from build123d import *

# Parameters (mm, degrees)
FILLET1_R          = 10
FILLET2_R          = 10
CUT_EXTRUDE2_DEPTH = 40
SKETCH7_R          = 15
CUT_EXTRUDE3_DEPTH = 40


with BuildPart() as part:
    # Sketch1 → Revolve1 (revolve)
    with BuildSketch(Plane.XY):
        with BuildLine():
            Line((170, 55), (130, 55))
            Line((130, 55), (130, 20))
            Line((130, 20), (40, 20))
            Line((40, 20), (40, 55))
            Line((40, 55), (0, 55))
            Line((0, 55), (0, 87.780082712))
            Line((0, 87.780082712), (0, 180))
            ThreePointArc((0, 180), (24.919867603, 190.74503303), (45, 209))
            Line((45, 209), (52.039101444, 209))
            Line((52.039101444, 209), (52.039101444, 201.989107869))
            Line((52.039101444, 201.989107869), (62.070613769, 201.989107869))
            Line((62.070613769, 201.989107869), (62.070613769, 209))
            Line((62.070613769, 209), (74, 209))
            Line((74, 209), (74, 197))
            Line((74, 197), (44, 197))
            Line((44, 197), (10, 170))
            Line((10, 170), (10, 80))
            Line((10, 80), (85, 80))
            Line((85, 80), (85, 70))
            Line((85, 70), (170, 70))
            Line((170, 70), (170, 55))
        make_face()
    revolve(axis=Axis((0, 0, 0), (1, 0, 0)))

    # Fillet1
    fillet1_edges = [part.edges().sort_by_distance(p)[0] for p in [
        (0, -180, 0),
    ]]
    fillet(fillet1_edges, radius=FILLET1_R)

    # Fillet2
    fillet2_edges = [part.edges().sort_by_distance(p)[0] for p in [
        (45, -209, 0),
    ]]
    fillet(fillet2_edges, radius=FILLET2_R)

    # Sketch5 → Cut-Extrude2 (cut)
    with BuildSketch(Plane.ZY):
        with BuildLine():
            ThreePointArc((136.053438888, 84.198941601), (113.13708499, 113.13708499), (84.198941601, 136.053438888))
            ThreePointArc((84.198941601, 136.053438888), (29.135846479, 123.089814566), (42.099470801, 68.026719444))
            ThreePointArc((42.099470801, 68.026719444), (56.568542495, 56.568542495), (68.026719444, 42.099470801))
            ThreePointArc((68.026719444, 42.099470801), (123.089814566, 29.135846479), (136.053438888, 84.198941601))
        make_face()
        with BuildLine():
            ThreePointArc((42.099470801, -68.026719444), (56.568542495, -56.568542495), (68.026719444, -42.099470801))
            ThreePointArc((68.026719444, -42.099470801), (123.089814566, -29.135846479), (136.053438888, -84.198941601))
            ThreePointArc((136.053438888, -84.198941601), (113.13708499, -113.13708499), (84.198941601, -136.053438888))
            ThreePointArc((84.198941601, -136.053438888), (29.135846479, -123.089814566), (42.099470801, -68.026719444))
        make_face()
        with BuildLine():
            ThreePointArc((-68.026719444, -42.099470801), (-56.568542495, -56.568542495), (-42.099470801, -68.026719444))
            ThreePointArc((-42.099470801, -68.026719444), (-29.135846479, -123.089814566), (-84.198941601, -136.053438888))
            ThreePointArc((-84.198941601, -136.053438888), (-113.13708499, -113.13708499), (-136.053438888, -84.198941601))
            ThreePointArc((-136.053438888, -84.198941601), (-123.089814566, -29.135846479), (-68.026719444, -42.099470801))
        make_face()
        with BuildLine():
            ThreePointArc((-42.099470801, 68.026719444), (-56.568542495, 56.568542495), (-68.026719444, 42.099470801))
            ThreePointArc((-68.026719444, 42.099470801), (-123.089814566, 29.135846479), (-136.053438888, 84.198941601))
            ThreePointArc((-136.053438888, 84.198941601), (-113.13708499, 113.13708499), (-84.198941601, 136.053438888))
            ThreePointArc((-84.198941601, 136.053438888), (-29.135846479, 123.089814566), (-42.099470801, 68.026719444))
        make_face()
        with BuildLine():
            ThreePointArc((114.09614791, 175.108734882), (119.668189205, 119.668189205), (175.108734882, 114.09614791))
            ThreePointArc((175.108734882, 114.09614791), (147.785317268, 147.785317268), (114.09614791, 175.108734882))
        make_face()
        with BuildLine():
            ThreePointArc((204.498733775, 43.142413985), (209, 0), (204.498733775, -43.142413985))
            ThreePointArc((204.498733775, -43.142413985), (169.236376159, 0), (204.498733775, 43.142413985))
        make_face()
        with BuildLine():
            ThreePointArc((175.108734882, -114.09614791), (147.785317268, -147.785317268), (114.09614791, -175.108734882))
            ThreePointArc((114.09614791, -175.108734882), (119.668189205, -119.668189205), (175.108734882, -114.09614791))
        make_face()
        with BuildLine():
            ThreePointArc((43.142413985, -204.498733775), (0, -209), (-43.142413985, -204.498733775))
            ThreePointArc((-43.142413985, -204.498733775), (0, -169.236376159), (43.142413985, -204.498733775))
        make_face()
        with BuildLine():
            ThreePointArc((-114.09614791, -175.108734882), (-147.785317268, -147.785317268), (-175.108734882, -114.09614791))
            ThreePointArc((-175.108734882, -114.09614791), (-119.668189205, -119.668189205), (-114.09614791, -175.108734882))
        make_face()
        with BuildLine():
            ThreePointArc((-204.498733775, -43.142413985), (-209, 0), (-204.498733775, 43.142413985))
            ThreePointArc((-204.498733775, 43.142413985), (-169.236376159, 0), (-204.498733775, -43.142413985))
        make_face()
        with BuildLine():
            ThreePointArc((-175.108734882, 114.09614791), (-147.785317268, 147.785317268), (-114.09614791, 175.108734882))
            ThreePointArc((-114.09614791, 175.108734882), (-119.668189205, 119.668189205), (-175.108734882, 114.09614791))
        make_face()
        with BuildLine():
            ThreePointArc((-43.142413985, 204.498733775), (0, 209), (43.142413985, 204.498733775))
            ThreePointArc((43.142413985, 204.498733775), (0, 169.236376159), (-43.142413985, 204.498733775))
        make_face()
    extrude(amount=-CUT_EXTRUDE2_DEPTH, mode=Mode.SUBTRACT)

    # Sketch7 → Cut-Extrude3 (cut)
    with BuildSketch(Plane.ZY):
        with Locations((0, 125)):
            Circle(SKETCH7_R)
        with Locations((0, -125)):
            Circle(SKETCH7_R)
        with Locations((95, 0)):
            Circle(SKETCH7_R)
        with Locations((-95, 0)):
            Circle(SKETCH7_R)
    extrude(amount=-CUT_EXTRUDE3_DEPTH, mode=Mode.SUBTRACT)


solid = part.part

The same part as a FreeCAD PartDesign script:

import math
import FreeCAD as App
import Part
import Sketcher
from FreeCAD import Vector


def edges_at(feature, points):
    """Names of the edges that pass closest to the given points."""
    edges = feature.Shape.Edges
    near = lambda p: min(range(len(edges)), key=lambda i: edges[i].distToShape(Part.Vertex(*p))[0])
    return sorted({f"Edge{near(p) + 1}" for p in points})

doc = App.newDocument("Part")
body = doc.addObject("PartDesign::Body", "Body")

# Sketch on XY plane
sketch1 = body.newObject("Sketcher::SketchObject", "Sketch")
sketch1.AttachmentSupport = (doc.getObject("XY_Plane"), [""])
sketch1.MapMode = "FlatFace"
sketch1.addGeometry(Part.LineSegment(Vector(130, 55, 0), Vector(170, 55, 0)), False)
sketch1.addGeometry(Part.LineSegment(Vector(170, 55, 0), Vector(170, 70, 0)), False)
sketch1.addGeometry(Part.LineSegment(Vector(170, 70, 0), Vector(85, 70, 0)), False)
sketch1.addGeometry(Part.LineSegment(Vector(85, 70, 0), Vector(85, 80, 0)), False)
sketch1.addGeometry(Part.LineSegment(Vector(85, 80, 0), Vector(10, 80, 0)), False)
sketch1.addGeometry(Part.LineSegment(Vector(10, 80, 0), Vector(10, 170, 0)), False)
sketch1.addGeometry(Part.LineSegment(Vector(10, 170, 0), Vector(44, 197, 0)), False)
sketch1.addGeometry(Part.LineSegment(Vector(44, 197, 0), Vector(74, 197, 0)), False)
sketch1.addGeometry(Part.LineSegment(Vector(74, 197, 0), Vector(74, 209, 0)), False)
sketch1.addGeometry(Part.LineSegment(Vector(74, 209, 0), Vector(62.070614, 209, 0)), False)
sketch1.addGeometry(Part.LineSegment(Vector(62.070614, 209, 0), Vector(62.070614, 201.989108, 0)), False)
sketch1.addGeometry(Part.LineSegment(Vector(62.070614, 201.989108, 0), Vector(52.039101, 201.989108, 0)), False)
sketch1.addGeometry(Part.LineSegment(Vector(52.039101, 201.989108, 0), Vector(52.039101, 209, 0)), False)
sketch1.addGeometry(Part.LineSegment(Vector(52.039101, 209, 0), Vector(45, 209, 0)), False)
sketch1.addGeometry(Part.ArcOfCircle(Part.Circle(Vector(-19.732526, 260.033229, 0), Vector(0, 0, 1), 82.429912), math.radians(-76.149725), math.radians(-38.251212)), False)
sketch1.addGeometry(Part.LineSegment(Vector(0, 180, 0), Vector(0, 55, 0)), False)
sketch1.addGeometry(Part.LineSegment(Vector(0, 55, 0), Vector(40, 55, 0)), False)
sketch1.addGeometry(Part.LineSegment(Vector(40, 55, 0), Vector(40, 20, 0)), False)
sketch1.addGeometry(Part.LineSegment(Vector(40, 20, 0), Vector(130, 20, 0)), False)
sketch1.addGeometry(Part.LineSegment(Vector(130, 20, 0), Vector(130, 55, 0)), False)
sketch1.addConstraint(Sketcher.Constraint("Coincident", 0, 2, 1, 1))
sketch1.addConstraint(Sketcher.Constraint("Coincident", 1, 2, 2, 1))
sketch1.addConstraint(Sketcher.Constraint("Coincident", 2, 2, 3, 1))
sketch1.addConstraint(Sketcher.Constraint("Coincident", 3, 2, 4, 1))
sketch1.addConstraint(Sketcher.Constraint("Coincident", 4, 2, 5, 1))
sketch1.addConstraint(Sketcher.Constraint("Coincident", 5, 2, 6, 1))
sketch1.addConstraint(Sketcher.Constraint("Coincident", 6, 2, 7, 1))
sketch1.addConstraint(Sketcher.Constraint("Coincident", 7, 2, 8, 1))
sketch1.addConstraint(Sketcher.Constraint("Coincident", 8, 2, 9, 1))
sketch1.addConstraint(Sketcher.Constraint("Coincident", 9, 2, 10, 1))
sketch1.addConstraint(Sketcher.Constraint("Coincident", 10, 2, 11, 1))
sketch1.addConstraint(Sketcher.Constraint("Coincident", 11, 2, 12, 1))
sketch1.addConstraint(Sketcher.Constraint("Coincident", 12, 2, 13, 1))
sketch1.addConstraint(Sketcher.Constraint("Coincident", 13, 2, 14, 2))
sketch1.addConstraint(Sketcher.Constraint("Coincident", 14, 1, 15, 1))
sketch1.addConstraint(Sketcher.Constraint("Coincident", 15, 2, 16, 1))
sketch1.addConstraint(Sketcher.Constraint("Coincident", 16, 2, 17, 1))
sketch1.addConstraint(Sketcher.Constraint("Coincident", 17, 2, 18, 1))
sketch1.addConstraint(Sketcher.Constraint("Coincident", 18, 2, 19, 1))
sketch1.addConstraint(Sketcher.Constraint("Coincident", 19, 2, 0, 1))
sketch1.addConstraint(Sketcher.Constraint("Horizontal", 0))
sketch1.addConstraint(Sketcher.Constraint("Vertical", 1))
sketch1.addConstraint(Sketcher.Constraint("Horizontal", 2))
sketch1.addConstraint(Sketcher.Constraint("Vertical", 3))
sketch1.addConstraint(Sketcher.Constraint("Horizontal", 4))
sketch1.addConstraint(Sketcher.Constraint("Vertical", 5))
sketch1.addConstraint(Sketcher.Constraint("Horizontal", 7))
sketch1.addConstraint(Sketcher.Constraint("Vertical", 8))
sketch1.addConstraint(Sketcher.Constraint("Horizontal", 9))
sketch1.addConstraint(Sketcher.Constraint("Vertical", 10))
sketch1.addConstraint(Sketcher.Constraint("Horizontal", 11))
sketch1.addConstraint(Sketcher.Constraint("Vertical", 12))
sketch1.addConstraint(Sketcher.Constraint("Horizontal", 13))
sketch1.addConstraint(Sketcher.Constraint("Vertical", 15))
sketch1.addConstraint(Sketcher.Constraint("Horizontal", 16))
sketch1.addConstraint(Sketcher.Constraint("Vertical", 17))
sketch1.addConstraint(Sketcher.Constraint("Horizontal", 18))
sketch1.addConstraint(Sketcher.Constraint("Vertical", 19))
sketch1.addConstraint(Sketcher.Constraint("PointOnObject", 14, 1, -2))
sketch1.addConstraint(Sketcher.Constraint("Horizontal", 9, 2, 12, 2))
sketch1.addConstraint(Sketcher.Constraint("Horizontal", 0, 2, 15, 2))
sketch1.addConstraint(Sketcher.Constraint("Equal", 0, 16))
sketch1.addConstraint(Sketcher.Constraint("Equal", 18, 5))
sketch1.addConstraint(Sketcher.Constraint("DistanceX", 0, 1, 0, 2, 40.0))
sketch1.addConstraint(Sketcher.Constraint("DistanceX", 2, 2, 2, 1, 85.0))
sketch1.addConstraint(Sketcher.Constraint("DistanceX", 4, 2, 4, 1, 75.0))
sketch1.addConstraint(Sketcher.Constraint("DistanceX", 7, 1, 7, 2, 30.0))
sketch1.addConstraint(Sketcher.Constraint("DistanceX", 18, 1, 18, 2, 90.0))
sketch1.addConstraint(Sketcher.Constraint("DistanceY", 1, 1, 1, 2, 15.0))
sketch1.addConstraint(Sketcher.Constraint("DistanceY", 3, 1, 3, 2, 10.0))
sketch1.addConstraint(Sketcher.Constraint("DistanceY", 8, 1, 8, 2, 12.0))
sketch1.addConstraint(Sketcher.Constraint("DistanceY", 15, 2, 15, 1, 125.0))
sketch1.addConstraint(Sketcher.Constraint("DistanceY", 17, 2, 17, 1, 35.0))
sketch1.addConstraint(Sketcher.Constraint("DistanceY", -1, 1, 0, 2, 55.0))
sketch1.addConstraint(Sketcher.Constraint("DistanceX", -1, 1, 6, 2, 44.0))
sketch1.addConstraint(Sketcher.Constraint("DistanceY", -1, 1, 6, 2, 197.0))
sketch1.addConstraint(Sketcher.Constraint("DistanceX", -1, 1, 13, 2, 45.0))
sketch1.addConstraint(Sketcher.Constraint("Radius", 14, 82.429912))
sketch1.addConstraint(Sketcher.Constraint("DistanceX", 13, 2, 13, 1, 7.039101))
sketch1.addConstraint(Sketcher.Constraint("DistanceX", 9, 2, 9, 1, 11.929386))
sketch1.addConstraint(Sketcher.Constraint("DistanceY", 10, 2, 10, 1, 7.010892))
revolution = body.newObject("PartDesign::Revolution", "Revolution")
revolution.Profile = sketch1
revolution.ReferenceAxis = (sketch1, ["H_Axis"])
revolution.Angle = 360
doc.recompute()

fillet = body.newObject("PartDesign::Fillet", "Fillet")
fillet.Base = (revolution, edges_at(revolution, [(0, -180, 0)]))
fillet.Radius = 10
doc.recompute()

fillet2 = body.newObject("PartDesign::Fillet", "Fillet001")
fillet2.Base = (fillet, edges_at(fillet, [(45, -209, 0)]))
fillet2.Radius = 10

# Sketch on YZ plane
sketch2 = body.newObject("Sketcher::SketchObject", "Sketch001")
sketch2.AttachmentSupport = (doc.getObject("YZ_Plane"), [""])
sketch2.MapMode = "FlatFace"
sketch2.addGeometry(Part.ArcOfCircle(Part.Circle(Vector(0, 0, 0), Vector(0, 0, 1), 160), math.radians(31.751985), math.radians(58.248015)), False)
sketch2.addGeometry(Part.ArcOfCircle(Part.Circle(Vector(102.040079, 63.149206, 0), Vector(0, 0, 1), 40), math.radians(-148.248015), math.radians(31.751985)), False)
sketch2.addGeometry(Part.ArcOfCircle(Part.Circle(Vector(0, 0, 0), Vector(0, 0, 1), 80), math.radians(31.751985), math.radians(58.248015)), False)
sketch2.addGeometry(Part.ArcOfCircle(Part.Circle(Vector(63.149206, 102.040079, 0), Vector(0, 0, 1), 40), math.radians(58.248015), math.radians(238.248015)), False)
sketch2.addGeometry(Part.ArcOfCircle(Part.Circle(Vector(0, 0, 0), Vector(0, 0, 1), 80), math.radians(121.751985), math.radians(148.248015)), False)
sketch2.addGeometry(Part.ArcOfCircle(Part.Circle(Vector(-102.040079, 63.149206, 0), Vector(0, 0, 1), 40), math.radians(148.248015), math.radians(328.248015)), False)
sketch2.addGeometry(Part.ArcOfCircle(Part.Circle(Vector(0, 0, 0), Vector(0, 0, 1), 160), math.radians(121.751985), math.radians(148.248015)), False)
sketch2.addGeometry(Part.ArcOfCircle(Part.Circle(Vector(-63.149206, 102.040079, 0), Vector(0, 0, 1), 40), math.radians(-58.248015), math.radians(121.751985)), False)
sketch2.addGeometry(Part.ArcOfCircle(Part.Circle(Vector(0, 0, 0), Vector(0, 0, 1), 80), math.radians(-148.248015), math.radians(-121.751985)), False)
sketch2.addGeometry(Part.ArcOfCircle(Part.Circle(Vector(-63.149206, -102.040079, 0), Vector(0, 0, 1), 40), math.radians(-121.751985), math.radians(58.248015)), False)
sketch2.addGeometry(Part.ArcOfCircle(Part.Circle(Vector(0, 0, 0), Vector(0, 0, 1), 160), math.radians(-148.248015), math.radians(-121.751985)), False)
sketch2.addGeometry(Part.ArcOfCircle(Part.Circle(Vector(-102.040079, -63.149206, 0), Vector(0, 0, 1), 40), math.radians(31.751985), math.radians(211.751985)), False)
sketch2.addGeometry(Part.ArcOfCircle(Part.Circle(Vector(0, 0, 0), Vector(0, 0, 1), 80), math.radians(-58.248015), math.radians(-31.751985)), False)
sketch2.addGeometry(Part.ArcOfCircle(Part.Circle(Vector(102.040079, -63.149206, 0), Vector(0, 0, 1), 40), math.radians(-31.751985), math.radians(148.248015)), False)
sketch2.addGeometry(Part.ArcOfCircle(Part.Circle(Vector(0, 0, 0), Vector(0, 0, 1), 160), math.radians(-58.248015), math.radians(-31.751985)), False)
sketch2.addGeometry(Part.ArcOfCircle(Part.Circle(Vector(63.149206, -102.040079, 0), Vector(0, 0, 1), 40), math.radians(121.751985), math.radians(301.751985)), False)
sketch2.addGeometry(Part.ArcOfCircle(Part.Circle(Vector(150.797073, 150.797073, 0), Vector(0, 0, 1), 44.02289), math.radians(146.478457), math.radians(303.521543)), False)
sketch2.addGeometry(Part.ArcOfCircle(Part.Circle(Vector(0, 0, 0), Vector(0, 0, 1), 209), math.radians(33.087185), math.radians(56.912815)), False)
sketch2.addGeometry(Part.ArcOfCircle(Part.Circle(Vector(0, 0, 0), Vector(0, 0, 1), 209), math.radians(78.087185), math.radians(101.912815)), False)
sketch2.addGeometry(Part.ArcOfCircle(Part.Circle(Vector(0, 213.259266, 0), Vector(0, 0, 1), 44.02289), math.radians(-168.521543), math.radians(-11.478457)), False)
sketch2.addGeometry(Part.ArcOfCircle(Part.Circle(Vector(0, 0, 0), Vector(0, 0, 1), 209), math.radians(123.087185), math.radians(146.912815)), False)
sketch2.addGeometry(Part.ArcOfCircle(Part.Circle(Vector(-150.797073, 150.797073, 0), Vector(0, 0, 1), 44.02289), math.radians(-123.521543), math.radians(33.521543)), False)
sketch2.addGeometry(Part.ArcOfCircle(Part.Circle(Vector(0, 0, 0), Vector(0, 0, 1), 209), math.radians(168.087185), math.radians(191.912815)), False)
sketch2.addGeometry(Part.ArcOfCircle(Part.Circle(Vector(-213.259266, 0, 0), Vector(0, 0, 1), 44.02289), math.radians(-78.521543), math.radians(78.521543)), False)
sketch2.addGeometry(Part.ArcOfCircle(Part.Circle(Vector(0, 0, 0), Vector(0, 0, 1), 209), math.radians(-146.912815), math.radians(-123.087185)), False)
sketch2.addGeometry(Part.ArcOfCircle(Part.Circle(Vector(-150.797073, -150.797073, 0), Vector(0, 0, 1), 44.02289), math.radians(-33.521543), math.radians(123.521543)), False)
sketch2.addGeometry(Part.ArcOfCircle(Part.Circle(Vector(0, 0, 0), Vector(0, 0, 1), 209), math.radians(-101.912815), math.radians(-78.087185)), False)
sketch2.addGeometry(Part.ArcOfCircle(Part.Circle(Vector(0, -213.259266, 0), Vector(0, 0, 1), 44.02289), math.radians(11.478457), math.radians(168.521543)), False)
sketch2.addGeometry(Part.ArcOfCircle(Part.Circle(Vector(0, 0, 0), Vector(0, 0, 1), 209), math.radians(-56.912815), math.radians(-33.087185)), False)
sketch2.addGeometry(Part.ArcOfCircle(Part.Circle(Vector(150.797073, -150.797073, 0), Vector(0, 0, 1), 44.02289), math.radians(56.478457), math.radians(213.521543)), False)
sketch2.addGeometry(Part.ArcOfCircle(Part.Circle(Vector(0, 0, 0), Vector(0, 0, 1), 209), math.radians(-11.912815), math.radians(11.912815)), False)
sketch2.addGeometry(Part.ArcOfCircle(Part.Circle(Vector(213.259266, 0, 0), Vector(0, 0, 1), 44.02289), math.radians(101.478457), math.radians(258.521543)), False)
sketch2.addConstraint(Sketcher.Constraint("Tangent", 0, 1, 1, 2))
sketch2.addConstraint(Sketcher.Constraint("Tangent", 1, 1, 2, 1))
sketch2.addConstraint(Sketcher.Constraint("Tangent", 2, 2, 3, 2))
sketch2.addConstraint(Sketcher.Constraint("Tangent", 3, 1, 0, 2))
sketch2.addConstraint(Sketcher.Constraint("Tangent", 4, 2, 5, 2))
sketch2.addConstraint(Sketcher.Constraint("Tangent", 5, 1, 6, 2))
sketch2.addConstraint(Sketcher.Constraint("Tangent", 6, 1, 7, 2))
sketch2.addConstraint(Sketcher.Constraint("Tangent", 7, 1, 4, 1))
sketch2.addConstraint(Sketcher.Constraint("Tangent", 8, 2, 9, 2))
sketch2.addConstraint(Sketcher.Constraint("Tangent", 9, 1, 10, 2))
sketch2.addConstraint(Sketcher.Constraint("Tangent", 10, 1, 11, 2))
sketch2.addConstraint(Sketcher.Constraint("Tangent", 11, 1, 8, 1))
sketch2.addConstraint(Sketcher.Constraint("Tangent", 12, 2, 13, 2))
sketch2.addConstraint(Sketcher.Constraint("Tangent", 13, 1, 14, 2))
sketch2.addConstraint(Sketcher.Constraint("Tangent", 14, 1, 15, 2))
sketch2.addConstraint(Sketcher.Constraint("Tangent", 15, 1, 12, 1))
sketch2.addConstraint(Sketcher.Constraint("Coincident", 16, 1, 17, 2))
sketch2.addConstraint(Sketcher.Constraint("Coincident", 17, 1, 16, 2))
sketch2.addConstraint(Sketcher.Constraint("Coincident", 18, 1, 19, 2))
sketch2.addConstraint(Sketcher.Constraint("Coincident", 19, 1, 18, 2))
sketch2.addConstraint(Sketcher.Constraint("Coincident", 20, 1, 21, 2))
sketch2.addConstraint(Sketcher.Constraint("Coincident", 21, 1, 20, 2))
sketch2.addConstraint(Sketcher.Constraint("Coincident", 22, 1, 23, 2))
sketch2.addConstraint(Sketcher.Constraint("Coincident", 23, 1, 22, 2))
sketch2.addConstraint(Sketcher.Constraint("Coincident", 24, 1, 25, 2))
sketch2.addConstraint(Sketcher.Constraint("Coincident", 25, 1, 24, 2))
sketch2.addConstraint(Sketcher.Constraint("Coincident", 26, 1, 27, 2))
sketch2.addConstraint(Sketcher.Constraint("Coincident", 27, 1, 26, 2))
sketch2.addConstraint(Sketcher.Constraint("Coincident", 28, 1, 29, 2))
sketch2.addConstraint(Sketcher.Constraint("Coincident", 29, 1, 28, 2))
sketch2.addConstraint(Sketcher.Constraint("Coincident", 30, 1, 31, 2))
sketch2.addConstraint(Sketcher.Constraint("Coincident", 31, 1, 30, 2))
sketch2.addConstraint(Sketcher.Constraint("Coincident", 0, 3, -1, 1))
sketch2.addConstraint(Sketcher.Constraint("Coincident", 2, 3, -1, 1))
sketch2.addConstraint(Sketcher.Constraint("Coincident", 4, 3, -1, 1))
sketch2.addConstraint(Sketcher.Constraint("Coincident", 6, 3, -1, 1))
sketch2.addConstraint(Sketcher.Constraint("Coincident", 8, 3, -1, 1))
sketch2.addConstraint(Sketcher.Constraint("Coincident", 10, 3, -1, 1))
sketch2.addConstraint(Sketcher.Constraint("Coincident", 12, 3, -1, 1))
sketch2.addConstraint(Sketcher.Constraint("Coincident", 14, 3, -1, 1))
sketch2.addConstraint(Sketcher.Constraint("Coincident", 17, 3, -1, 1))
sketch2.addConstraint(Sketcher.Constraint("Coincident", 18, 3, -1, 1))
sketch2.addConstraint(Sketcher.Constraint("Coincident", 20, 3, -1, 1))
sketch2.addConstraint(Sketcher.Constraint("Coincident", 22, 3, -1, 1))
sketch2.addConstraint(Sketcher.Constraint("Coincident", 24, 3, -1, 1))
sketch2.addConstraint(Sketcher.Constraint("Coincident", 26, 3, -1, 1))
sketch2.addConstraint(Sketcher.Constraint("Coincident", 28, 3, -1, 1))
sketch2.addConstraint(Sketcher.Constraint("Coincident", 30, 3, -1, 1))
sketch2.addConstraint(Sketcher.Constraint("Equal", 2, 4))
sketch2.addConstraint(Sketcher.Constraint("Equal", 3, 5))
sketch2.addConstraint(Sketcher.Constraint("Equal", 4, 8))
sketch2.addConstraint(Sketcher.Constraint("Equal", 7, 9))
sketch2.addConstraint(Sketcher.Constraint("Equal", 8, 12))
sketch2.addConstraint(Sketcher.Constraint("Equal", 11, 13))
sketch2.addConstraint(Sketcher.Constraint("Equal", 17, 18))
sketch2.addConstraint(Sketcher.Constraint("Equal", 16, 19))
sketch2.addConstraint(Sketcher.Constraint("Equal", 18, 20))
sketch2.addConstraint(Sketcher.Constraint("Equal", 19, 21))
sketch2.addConstraint(Sketcher.Constraint("Equal", 20, 22))
sketch2.addConstraint(Sketcher.Constraint("Equal", 21, 23))
sketch2.addConstraint(Sketcher.Constraint("Equal", 22, 24))
sketch2.addConstraint(Sketcher.Constraint("Equal", 23, 25))
sketch2.addConstraint(Sketcher.Constraint("Equal", 24, 26))
sketch2.addConstraint(Sketcher.Constraint("Equal", 25, 27))
sketch2.addConstraint(Sketcher.Constraint("Equal", 26, 28))
sketch2.addConstraint(Sketcher.Constraint("Equal", 27, 29))
sketch2.addConstraint(Sketcher.Constraint("Equal", 28, 30))
sketch2.addConstraint(Sketcher.Constraint("Equal", 29, 31))
sketch2.addConstraint(Sketcher.Constraint("Symmetric", 16, 3, 25, 3, -1, 1))
sketch2.addConstraint(Sketcher.Constraint("Symmetric", 19, 3, 27, 3, -1, 1))
sketch2.addConstraint(Sketcher.Constraint("Symmetric", 21, 3, 29, 3, -1, 1))
sketch2.addConstraint(Sketcher.Constraint("Symmetric", 23, 3, 31, 3, -1, 1))
sketch2.addConstraint(Sketcher.Constraint("Symmetric", 16, 3, 21, 3, -2))
sketch2.addConstraint(Sketcher.Constraint("PointOnObject", 19, 3, -2))
sketch2.addConstraint(Sketcher.Constraint("PointOnObject", 23, 3, -1))
sketch2.addConstraint(Sketcher.Constraint("Horizontal", 1, 3, 5, 3))
sketch2.addConstraint(Sketcher.Constraint("Horizontal", 3, 3, 7, 3))
sketch2.addConstraint(Sketcher.Constraint("Horizontal", 11, 3, 13, 3))
sketch2.addConstraint(Sketcher.Constraint("Horizontal", 9, 3, 15, 3))
sketch2.addConstraint(Sketcher.Constraint("Vertical", 7, 3, 9, 3))
sketch2.addConstraint(Sketcher.Constraint("Vertical", 5, 3, 11, 3))
sketch2.addConstraint(Sketcher.Constraint("Radius", 0, 160.0))
sketch2.addConstraint(Sketcher.Constraint("Radius", 1, 40.0))
sketch2.addConstraint(Sketcher.Constraint("Radius", 17, 209.0))
sketch2.addConstraint(Sketcher.Constraint("Radius", 16, 44.02289))
sketch2.addConstraint(Sketcher.Constraint("DistanceX", -1, 1, 1, 3, 102.040079))
sketch2.addConstraint(Sketcher.Constraint("DistanceY", -1, 1, 3, 3, 102.040079))
sketch2.addConstraint(Sketcher.Constraint("DistanceX", -1, 1, 16, 3, 150.797073))
sketch2.addConstraint(Sketcher.Constraint("DistanceY", -1, 1, 16, 3, 150.797073))
sketch2.addConstraint(Sketcher.Constraint("DistanceY", -1, 1, 19, 3, 213.259266))
sketch2.addConstraint(Sketcher.Constraint("DistanceX", 23, 3, -1, 1, 213.259266))
pocket1 = body.newObject("PartDesign::Pocket", "Pocket")
pocket1.Profile = sketch2
pocket1.Length = 40
pocket1.Reversed = True

# Sketch on YZ plane
sketch3 = body.newObject("Sketcher::SketchObject", "Sketch002")
sketch3.AttachmentSupport = (doc.getObject("YZ_Plane"), [""])
sketch3.MapMode = "FlatFace"
sketch3.addGeometry(Part.Circle(Vector(125, 0, 0), Vector(0, 0, 1), 15), False)
sketch3.addGeometry(Part.Circle(Vector(-125, 0, 0), Vector(0, 0, 1), 15), False)
sketch3.addGeometry(Part.Circle(Vector(0, 95, 0), Vector(0, 0, 1), 15), False)
sketch3.addGeometry(Part.Circle(Vector(0, -95, 0), Vector(0, 0, 1), 15), False)
sketch3.addConstraint(Sketcher.Constraint("Equal", 0, 1))
sketch3.addConstraint(Sketcher.Constraint("Equal", 1, 2))
sketch3.addConstraint(Sketcher.Constraint("Equal", 2, 3))
sketch3.addConstraint(Sketcher.Constraint("Symmetric", 0, 3, 1, 3, -1, 1))
sketch3.addConstraint(Sketcher.Constraint("Symmetric", 2, 3, 3, 3, -1, 1))
sketch3.addConstraint(Sketcher.Constraint("PointOnObject", 0, 3, -1))
sketch3.addConstraint(Sketcher.Constraint("PointOnObject", 2, 3, -2))
sketch3.addConstraint(Sketcher.Constraint("Diameter", 0, 30.0))
sketch3.addConstraint(Sketcher.Constraint("DistanceX", -1, 1, 0, 3, 125.0))
sketch3.addConstraint(Sketcher.Constraint("DistanceY", -1, 1, 2, 3, 95.0))
pocket2 = body.newObject("PartDesign::Pocket", "Pocket001")
pocket2.Profile = sketch3
pocket2.Length = 40
pocket2.Reversed = True

doc.recompute()
